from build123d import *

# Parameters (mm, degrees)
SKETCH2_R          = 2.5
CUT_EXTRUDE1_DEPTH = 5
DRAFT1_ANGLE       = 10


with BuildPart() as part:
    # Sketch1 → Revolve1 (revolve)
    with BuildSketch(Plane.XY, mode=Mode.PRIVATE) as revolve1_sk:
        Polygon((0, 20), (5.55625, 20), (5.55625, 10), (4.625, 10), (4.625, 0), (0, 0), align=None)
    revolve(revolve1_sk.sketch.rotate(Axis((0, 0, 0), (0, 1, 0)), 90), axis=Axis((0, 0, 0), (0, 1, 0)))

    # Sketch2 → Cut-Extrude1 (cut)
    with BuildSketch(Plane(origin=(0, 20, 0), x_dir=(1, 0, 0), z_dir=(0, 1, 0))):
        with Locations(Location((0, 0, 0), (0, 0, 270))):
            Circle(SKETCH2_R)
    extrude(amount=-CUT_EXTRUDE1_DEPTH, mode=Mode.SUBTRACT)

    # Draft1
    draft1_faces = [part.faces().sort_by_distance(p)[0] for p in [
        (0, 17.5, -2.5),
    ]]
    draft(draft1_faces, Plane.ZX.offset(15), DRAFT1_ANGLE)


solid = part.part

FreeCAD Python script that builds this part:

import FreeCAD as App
import Part
import Sketcher
from FreeCAD import Vector
Q = App.Units.Quantity


def faces_at(feature, points):
    """Names of the faces that lie closest to the given points."""
    faces = feature.Shape.Faces
    near = lambda p: min(range(len(faces)), key=lambda i: faces[i].distToShape(Part.Vertex(*p))[0])
    return sorted({f"Face{near(p) + 1}" for p in points})


def add_polygon(sketch, points):
    """Adds a closed chain of lines whose ends are joined by coincident constraints."""
    first, n = sketch.GeometryCount, len(points)
    for a, b in zip(points, points[1:] + points[:1]):
        sketch.addGeometry(Part.LineSegment(App.Vector(*a, 0), App.Vector(*b, 0)), False)
    for i in range(n):
        sketch.addConstraint(Sketcher.Constraint("Coincident", first + i, 2, first + (i + 1) % n, 1))

doc = App.newDocument("Part")
body = doc.addObject("PartDesign::Body", "Body")

sketch1 = body.newObject("Sketcher::SketchObject", "Sketch")
sketch1.AttachmentSupport = (doc.getObject("XY_Plane"), [""])
sketch1.MapMode = "FlatFace"
add_polygon(sketch1, [(5.55625, 20), (0, 20), (0, 0), (4.625, 0), (4.625, 10), (5.55625, 10)])
sketch1.addConstraint(Sketcher.Constraint("Horizontal", 0))
sketch1.addConstraint(Sketcher.Constraint("Vertical", 1))
sketch1.addConstraint(Sketcher.Constraint("Horizontal", 2))
sketch1.addConstraint(Sketcher.Constraint("Vertical", 3))
sketch1.addConstraint(Sketcher.Constraint("Horizontal", 4))
sketch1.addConstraint(Sketcher.Constraint("Vertical", 5))
sketch1.addConstraint(Sketcher.Constraint("Coincident", 1, 2, -1, 1))
sketch1.addConstraint(Sketcher.Constraint("Equal", 3, 5))
sketch1.addConstraint(Sketcher.Constraint("DistanceY", 1, 2, 1, 1, Q("20 mm")))
sketch1.addConstraint(Sketcher.Constraint("DistanceX", 2, 1, 2, 2, Q("4.625 mm")))
sketch1.addConstraint(Sketcher.Constraint("DistanceX", 0, 2, 0, 1, Q("5.55625 mm")))
revolution = body.newObject("PartDesign::Revolution", "Revolution")
revolution.Profile = sketch1
revolution.ReferenceAxis = (sketch1, ["V_Axis"])
revolution.Angle = 360

sketch2 = body.newObject("Sketcher::SketchObject", "Sketch001")
sketch2.AttachmentSupport = (doc.getObject("XZ_Plane"), [""])
sketch2.MapMode = "FlatFace"
sketch2.AttachmentOffset = App.Placement(Vector(0, 0, -20), App.Rotation())
sketch2.addGeometry(Part.Circle(Vector(0, 0, 0), Vector(0, 0, 1), 2.5), False)
sketch2.addConstraint(Sketcher.Constraint("Coincident", 0, 3, -1, 1))
sketch2.addConstraint(Sketcher.Constraint("Diameter", 0, Q("5 mm")))
pocket1 = body.newObject("PartDesign::Pocket", "Pocket")
pocket1.Profile = sketch2
pocket1.Length = 5
pocket1.Reversed = True
doc.recompute()

datumplane = body.newObject("PartDesign::Plane", "DatumPlane")
datumplane.AttachmentSupport = (doc.getObject("XZ_Plane"), [""])
datumplane.MapMode = "FlatFace"
datumplane.AttachmentOffset = App.Placement(Vector(0, 0, -15), App.Rotation())
draft = body.newObject("PartDesign::Draft", "Draft")
draft.Base = (pocket1, faces_at(pocket1, [(0, 17.5, -2.5)]))
draft.NeutralPlane = (datumplane, [""])
draft.Angle = 10
draft.Reversed = True

doc.recompute()
